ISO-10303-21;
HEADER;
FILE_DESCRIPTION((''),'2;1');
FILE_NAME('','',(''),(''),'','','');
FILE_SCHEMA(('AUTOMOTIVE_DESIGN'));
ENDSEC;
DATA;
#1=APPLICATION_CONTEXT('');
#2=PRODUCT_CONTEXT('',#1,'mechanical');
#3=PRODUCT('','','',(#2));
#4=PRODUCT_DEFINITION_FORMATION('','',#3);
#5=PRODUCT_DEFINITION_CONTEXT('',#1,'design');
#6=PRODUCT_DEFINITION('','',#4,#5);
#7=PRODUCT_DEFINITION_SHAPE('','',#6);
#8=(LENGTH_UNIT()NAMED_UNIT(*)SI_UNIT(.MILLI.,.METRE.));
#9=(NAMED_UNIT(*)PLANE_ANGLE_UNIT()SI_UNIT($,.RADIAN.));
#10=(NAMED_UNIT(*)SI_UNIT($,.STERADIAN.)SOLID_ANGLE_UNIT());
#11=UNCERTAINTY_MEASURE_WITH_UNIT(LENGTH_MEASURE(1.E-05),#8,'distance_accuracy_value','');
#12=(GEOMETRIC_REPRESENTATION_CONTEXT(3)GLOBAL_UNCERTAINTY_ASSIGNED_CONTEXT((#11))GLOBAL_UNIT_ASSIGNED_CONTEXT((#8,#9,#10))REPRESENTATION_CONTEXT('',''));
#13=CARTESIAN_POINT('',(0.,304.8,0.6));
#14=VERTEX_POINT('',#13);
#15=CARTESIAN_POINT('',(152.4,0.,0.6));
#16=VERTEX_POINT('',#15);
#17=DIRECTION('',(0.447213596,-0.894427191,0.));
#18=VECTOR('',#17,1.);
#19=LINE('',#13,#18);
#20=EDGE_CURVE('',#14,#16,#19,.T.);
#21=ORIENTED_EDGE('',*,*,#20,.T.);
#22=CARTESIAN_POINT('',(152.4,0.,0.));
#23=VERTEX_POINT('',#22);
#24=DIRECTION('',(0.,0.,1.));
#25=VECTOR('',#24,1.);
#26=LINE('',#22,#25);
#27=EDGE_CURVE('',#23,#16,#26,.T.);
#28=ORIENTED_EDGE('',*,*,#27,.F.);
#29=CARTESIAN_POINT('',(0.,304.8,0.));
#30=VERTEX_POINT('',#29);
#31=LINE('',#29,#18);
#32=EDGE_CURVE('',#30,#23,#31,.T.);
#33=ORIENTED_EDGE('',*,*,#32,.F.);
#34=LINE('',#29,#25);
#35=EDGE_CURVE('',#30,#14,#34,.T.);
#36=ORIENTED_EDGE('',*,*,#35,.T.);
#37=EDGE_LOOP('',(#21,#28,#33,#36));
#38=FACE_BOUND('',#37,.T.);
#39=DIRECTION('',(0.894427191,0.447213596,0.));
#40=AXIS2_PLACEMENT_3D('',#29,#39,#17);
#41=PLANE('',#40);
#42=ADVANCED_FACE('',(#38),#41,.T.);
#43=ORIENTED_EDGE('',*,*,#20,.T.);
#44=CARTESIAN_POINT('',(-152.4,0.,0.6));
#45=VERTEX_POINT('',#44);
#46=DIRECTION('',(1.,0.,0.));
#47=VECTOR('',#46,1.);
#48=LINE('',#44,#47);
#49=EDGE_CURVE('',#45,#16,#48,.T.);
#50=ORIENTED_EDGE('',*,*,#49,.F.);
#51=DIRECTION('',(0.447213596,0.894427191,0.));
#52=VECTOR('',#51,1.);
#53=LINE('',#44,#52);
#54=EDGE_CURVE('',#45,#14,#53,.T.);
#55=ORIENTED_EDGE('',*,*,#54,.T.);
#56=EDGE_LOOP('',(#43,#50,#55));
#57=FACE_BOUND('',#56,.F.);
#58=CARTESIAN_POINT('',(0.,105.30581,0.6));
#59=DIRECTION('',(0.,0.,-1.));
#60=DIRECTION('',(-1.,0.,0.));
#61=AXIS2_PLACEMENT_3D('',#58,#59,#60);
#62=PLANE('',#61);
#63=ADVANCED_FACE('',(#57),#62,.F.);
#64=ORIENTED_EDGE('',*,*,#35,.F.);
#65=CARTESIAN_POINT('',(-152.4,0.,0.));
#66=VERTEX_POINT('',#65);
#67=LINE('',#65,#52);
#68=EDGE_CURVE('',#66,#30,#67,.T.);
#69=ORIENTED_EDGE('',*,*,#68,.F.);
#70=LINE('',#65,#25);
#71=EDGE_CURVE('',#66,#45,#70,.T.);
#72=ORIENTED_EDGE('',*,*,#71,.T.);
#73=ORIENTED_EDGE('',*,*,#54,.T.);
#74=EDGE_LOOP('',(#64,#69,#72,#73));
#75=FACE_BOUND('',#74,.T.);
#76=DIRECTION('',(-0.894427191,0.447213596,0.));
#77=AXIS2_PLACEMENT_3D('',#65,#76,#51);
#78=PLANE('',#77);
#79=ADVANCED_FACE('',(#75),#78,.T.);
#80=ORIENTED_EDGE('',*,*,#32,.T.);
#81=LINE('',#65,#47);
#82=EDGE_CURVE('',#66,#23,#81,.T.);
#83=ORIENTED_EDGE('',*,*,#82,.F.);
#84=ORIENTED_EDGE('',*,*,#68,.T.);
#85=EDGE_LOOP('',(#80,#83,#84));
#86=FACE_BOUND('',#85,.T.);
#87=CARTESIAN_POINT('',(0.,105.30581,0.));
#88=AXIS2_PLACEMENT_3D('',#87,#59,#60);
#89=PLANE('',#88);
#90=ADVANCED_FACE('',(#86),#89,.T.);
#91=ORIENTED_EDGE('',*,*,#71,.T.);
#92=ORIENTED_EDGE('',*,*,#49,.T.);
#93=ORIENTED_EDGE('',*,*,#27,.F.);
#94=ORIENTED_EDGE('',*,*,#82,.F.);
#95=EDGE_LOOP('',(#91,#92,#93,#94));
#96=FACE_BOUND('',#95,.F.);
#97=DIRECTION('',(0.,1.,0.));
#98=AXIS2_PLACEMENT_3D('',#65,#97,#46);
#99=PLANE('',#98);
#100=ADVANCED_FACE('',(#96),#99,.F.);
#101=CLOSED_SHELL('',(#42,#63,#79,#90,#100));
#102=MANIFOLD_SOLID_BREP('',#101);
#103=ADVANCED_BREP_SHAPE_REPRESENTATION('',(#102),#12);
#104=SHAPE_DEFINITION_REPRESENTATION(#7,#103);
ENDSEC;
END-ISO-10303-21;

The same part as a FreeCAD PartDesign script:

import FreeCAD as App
import Part
import Sketcher
from FreeCAD import Vector
Q = App.Units.Quantity


def add_polygon(sketch, points):
    """Adds a closed chain of lines whose ends are joined by coincident constraints."""
    first, n = sketch.GeometryCount, len(points)
    for a, b in zip(points, points[1:] + points[:1]):
        sketch.addGeometry(Part.LineSegment(App.Vector(*a, 0), App.Vector(*b, 0)), False)
    for i in range(n):
        sketch.addConstraint(Sketcher.Constraint("Coincident", first + i, 2, first + (i + 1) % n, 1))

doc = App.newDocument("Part")
body = doc.addObject("PartDesign::Body", "Body")

sketch1 = body.newObject("Sketcher::SketchObject", "Sketch")
sketch1.AttachmentSupport = (doc.getObject("XY_Plane"), [""])
sketch1.MapMode = "FlatFace"
add_polygon(sketch1, [(0, 305), (-152, 0), (152, 0)])
sketch1.addConstraint(Sketcher.Constraint("Horizontal", 1))
sketch1.addConstraint(Sketcher.Constraint("Symmetric", 0, 2, 1, 2, -1, 1))
sketch1.addConstraint(Sketcher.Constraint("PointOnObject", 2, 2, -2))
sketch1.addConstraint(Sketcher.Constraint("DistanceX", 1, 1, 1, 2, Q("304.8 mm")))
sketch1.addConstraint(Sketcher.Constraint("DistanceY", -1, 1, 2, 2, Q("304.8 mm")))
pad1 = body.newObject("PartDesign::Pad", "Pad")
pad1.Profile = sketch1
pad1.Length = 0.6

doc.recompute()
